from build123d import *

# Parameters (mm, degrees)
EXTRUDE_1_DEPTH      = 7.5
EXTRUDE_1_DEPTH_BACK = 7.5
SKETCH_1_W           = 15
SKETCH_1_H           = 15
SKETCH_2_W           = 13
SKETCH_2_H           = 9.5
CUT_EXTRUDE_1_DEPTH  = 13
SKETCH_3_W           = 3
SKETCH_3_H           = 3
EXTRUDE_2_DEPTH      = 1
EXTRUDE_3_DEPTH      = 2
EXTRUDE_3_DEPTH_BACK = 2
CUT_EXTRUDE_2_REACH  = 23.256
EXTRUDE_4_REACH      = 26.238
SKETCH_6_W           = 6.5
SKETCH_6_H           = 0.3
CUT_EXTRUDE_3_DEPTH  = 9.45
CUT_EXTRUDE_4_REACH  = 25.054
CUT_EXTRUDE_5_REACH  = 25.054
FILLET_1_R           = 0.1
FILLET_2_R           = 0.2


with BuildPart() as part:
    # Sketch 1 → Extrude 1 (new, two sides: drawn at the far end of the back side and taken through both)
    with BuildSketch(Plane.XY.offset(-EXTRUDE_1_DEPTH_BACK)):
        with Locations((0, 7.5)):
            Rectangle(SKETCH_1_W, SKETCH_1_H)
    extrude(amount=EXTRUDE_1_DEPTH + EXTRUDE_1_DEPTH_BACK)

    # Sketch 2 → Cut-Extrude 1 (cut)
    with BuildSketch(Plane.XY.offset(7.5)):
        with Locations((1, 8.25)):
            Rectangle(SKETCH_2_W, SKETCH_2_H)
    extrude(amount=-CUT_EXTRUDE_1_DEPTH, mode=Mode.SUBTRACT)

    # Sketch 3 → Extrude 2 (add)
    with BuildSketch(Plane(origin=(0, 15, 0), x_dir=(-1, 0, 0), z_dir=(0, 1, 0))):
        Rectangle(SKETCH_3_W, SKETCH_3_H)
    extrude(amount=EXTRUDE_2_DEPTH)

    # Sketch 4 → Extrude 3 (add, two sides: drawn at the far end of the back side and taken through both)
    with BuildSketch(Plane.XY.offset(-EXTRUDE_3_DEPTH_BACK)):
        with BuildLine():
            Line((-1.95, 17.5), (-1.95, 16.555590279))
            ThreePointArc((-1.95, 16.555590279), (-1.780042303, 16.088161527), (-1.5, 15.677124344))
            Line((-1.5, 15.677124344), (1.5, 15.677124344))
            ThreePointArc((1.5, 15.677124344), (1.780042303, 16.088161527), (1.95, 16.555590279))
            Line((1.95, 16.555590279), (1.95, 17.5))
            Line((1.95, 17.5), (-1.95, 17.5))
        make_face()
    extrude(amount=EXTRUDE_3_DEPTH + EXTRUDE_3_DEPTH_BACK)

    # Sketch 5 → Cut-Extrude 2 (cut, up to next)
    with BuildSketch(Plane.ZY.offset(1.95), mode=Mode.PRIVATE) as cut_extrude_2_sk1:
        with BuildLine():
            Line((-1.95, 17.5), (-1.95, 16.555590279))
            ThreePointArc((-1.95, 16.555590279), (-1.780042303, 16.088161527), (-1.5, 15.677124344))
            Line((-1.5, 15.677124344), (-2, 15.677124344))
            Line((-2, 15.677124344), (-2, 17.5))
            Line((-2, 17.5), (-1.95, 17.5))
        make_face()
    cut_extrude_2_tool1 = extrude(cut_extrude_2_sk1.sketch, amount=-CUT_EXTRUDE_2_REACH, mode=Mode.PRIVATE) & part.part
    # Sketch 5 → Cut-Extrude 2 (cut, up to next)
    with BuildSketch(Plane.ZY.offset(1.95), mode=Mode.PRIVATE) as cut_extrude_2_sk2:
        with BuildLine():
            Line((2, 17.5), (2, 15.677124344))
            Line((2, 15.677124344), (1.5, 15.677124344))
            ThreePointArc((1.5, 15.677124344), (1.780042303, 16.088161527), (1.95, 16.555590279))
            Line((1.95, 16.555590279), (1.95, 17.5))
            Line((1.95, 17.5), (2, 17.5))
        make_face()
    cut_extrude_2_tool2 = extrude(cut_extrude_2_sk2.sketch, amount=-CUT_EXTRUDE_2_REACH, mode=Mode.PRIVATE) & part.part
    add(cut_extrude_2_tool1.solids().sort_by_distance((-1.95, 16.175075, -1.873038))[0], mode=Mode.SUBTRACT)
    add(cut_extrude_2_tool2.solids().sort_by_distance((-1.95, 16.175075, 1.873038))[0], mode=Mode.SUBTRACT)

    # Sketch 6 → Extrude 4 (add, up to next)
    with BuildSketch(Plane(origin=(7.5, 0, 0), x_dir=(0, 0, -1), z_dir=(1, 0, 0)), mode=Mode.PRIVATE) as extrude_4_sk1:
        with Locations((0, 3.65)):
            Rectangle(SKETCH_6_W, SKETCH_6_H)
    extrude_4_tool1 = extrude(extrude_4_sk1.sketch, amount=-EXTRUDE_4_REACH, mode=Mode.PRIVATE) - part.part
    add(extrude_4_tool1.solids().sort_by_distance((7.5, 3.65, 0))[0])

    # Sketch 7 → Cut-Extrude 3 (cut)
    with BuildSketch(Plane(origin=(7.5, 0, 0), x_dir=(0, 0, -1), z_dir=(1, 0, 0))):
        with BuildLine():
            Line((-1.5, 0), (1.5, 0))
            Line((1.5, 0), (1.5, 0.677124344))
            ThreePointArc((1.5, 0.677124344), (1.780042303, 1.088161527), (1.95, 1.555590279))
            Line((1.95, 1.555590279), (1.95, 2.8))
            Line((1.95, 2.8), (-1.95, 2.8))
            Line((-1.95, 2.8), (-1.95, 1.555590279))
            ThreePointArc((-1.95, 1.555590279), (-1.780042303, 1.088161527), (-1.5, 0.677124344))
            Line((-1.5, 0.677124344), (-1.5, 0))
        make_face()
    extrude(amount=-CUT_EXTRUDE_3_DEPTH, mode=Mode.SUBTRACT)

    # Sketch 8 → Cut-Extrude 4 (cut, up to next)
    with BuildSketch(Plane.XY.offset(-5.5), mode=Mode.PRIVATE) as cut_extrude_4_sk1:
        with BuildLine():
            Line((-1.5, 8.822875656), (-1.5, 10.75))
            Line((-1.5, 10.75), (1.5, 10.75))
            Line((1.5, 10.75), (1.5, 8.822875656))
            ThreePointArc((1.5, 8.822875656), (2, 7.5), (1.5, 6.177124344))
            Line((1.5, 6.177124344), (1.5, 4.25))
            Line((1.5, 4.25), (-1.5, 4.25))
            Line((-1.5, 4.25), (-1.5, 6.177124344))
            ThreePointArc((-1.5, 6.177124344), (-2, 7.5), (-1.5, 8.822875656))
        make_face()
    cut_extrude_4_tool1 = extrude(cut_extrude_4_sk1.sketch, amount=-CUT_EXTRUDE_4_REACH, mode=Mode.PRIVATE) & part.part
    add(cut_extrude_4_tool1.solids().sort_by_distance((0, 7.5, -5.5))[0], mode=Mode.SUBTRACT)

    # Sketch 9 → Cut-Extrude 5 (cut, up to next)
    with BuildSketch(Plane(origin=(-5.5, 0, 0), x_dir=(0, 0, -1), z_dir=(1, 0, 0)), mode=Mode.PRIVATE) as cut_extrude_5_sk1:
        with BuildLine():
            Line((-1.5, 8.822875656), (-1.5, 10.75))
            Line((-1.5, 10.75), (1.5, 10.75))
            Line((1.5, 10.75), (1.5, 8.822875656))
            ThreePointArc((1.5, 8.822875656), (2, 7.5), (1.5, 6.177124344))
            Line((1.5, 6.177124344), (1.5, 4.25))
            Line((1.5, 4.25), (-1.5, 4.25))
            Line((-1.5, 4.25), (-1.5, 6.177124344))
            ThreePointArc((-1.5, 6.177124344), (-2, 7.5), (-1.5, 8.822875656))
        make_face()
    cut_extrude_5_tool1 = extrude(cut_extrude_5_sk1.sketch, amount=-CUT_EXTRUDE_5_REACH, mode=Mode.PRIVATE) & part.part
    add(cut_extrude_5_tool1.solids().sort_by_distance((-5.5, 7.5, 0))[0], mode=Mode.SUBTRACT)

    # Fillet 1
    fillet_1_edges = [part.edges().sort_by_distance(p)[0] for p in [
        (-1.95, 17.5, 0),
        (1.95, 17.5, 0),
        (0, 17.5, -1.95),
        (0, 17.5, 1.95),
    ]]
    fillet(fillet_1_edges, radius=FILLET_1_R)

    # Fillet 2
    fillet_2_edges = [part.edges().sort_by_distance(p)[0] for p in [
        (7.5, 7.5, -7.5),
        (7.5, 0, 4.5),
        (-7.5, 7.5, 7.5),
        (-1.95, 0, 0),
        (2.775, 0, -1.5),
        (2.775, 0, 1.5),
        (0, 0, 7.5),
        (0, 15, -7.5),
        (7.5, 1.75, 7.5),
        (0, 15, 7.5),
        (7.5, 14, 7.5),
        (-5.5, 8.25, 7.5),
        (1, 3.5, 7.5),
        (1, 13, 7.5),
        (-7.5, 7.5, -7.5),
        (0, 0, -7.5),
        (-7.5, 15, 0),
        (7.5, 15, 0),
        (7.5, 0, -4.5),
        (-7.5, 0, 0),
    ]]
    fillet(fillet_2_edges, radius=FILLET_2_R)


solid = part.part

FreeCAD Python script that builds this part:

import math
import FreeCAD as App
import Part
import Sketcher

V = App.Vector


def edges_at(feature, points):
    """Names of the edges that pass closest to the given points."""
    edges = feature.Shape.Edges
    near = lambda p: min(range(len(edges)), key=lambda i: edges[i].distToShape(Part.Vertex(*p))[0])
    return sorted({f"Edge{near(p) + 1}" for p in points})


def add_polygon(sketch, points):
    """Adds a closed chain of lines whose ends are joined by coincident constraints."""
    first, n = sketch.GeometryCount, len(points)
    for a, b in zip(points, points[1:] + points[:1]):
        sketch.addGeometry(Part.LineSegment(App.Vector(*a, 0), App.Vector(*b, 0)), False)
    for i in range(n):
        sketch.addConstraint(Sketcher.Constraint("Coincident", first + i, 2, first + (i + 1) % n, 1))

doc = App.newDocument("Part")
body = doc.addObject("PartDesign::Body", "Body")

# Sketch on XY plane
sketch1 = doc.addObject("Sketcher::SketchObject", "Sketch")
body.addObject(sketch1)
sketch1.AttachmentSupport = (doc.XY_Plane, [""])
sketch1.MapMode = "FlatFace"
add_polygon(sketch1, [(-8, 15), (-8, 0), (8, 0), (8, 15)])  # lines 0-3
sketch1.addConstraint([
    Sketcher.Constraint("Vertical", 0),
    Sketcher.Constraint("Horizontal", 1),
    Sketcher.Constraint("Vertical", 2),
    Sketcher.Constraint("Horizontal", 3),
    Sketcher.Constraint("Symmetric", 0, 2, 1, 2, -1, 1),
    Sketcher.Constraint("Equal", 3, 0),
    Sketcher.Constraint("DistanceX", 1, 1, 1, 2, 15.0),
])
pad1 = doc.addObject("PartDesign::Pad", "Pad")
body.addObject(pad1)
pad1.Profile = sketch1
pad1.Type = "TwoLengths"
pad1.Length = 7.5
pad1.Length2 = 7.5

# Sketch on XY plane
sketch2 = doc.addObject("Sketcher::SketchObject", "Sketch001")
body.addObject(sketch2)
sketch2.AttachmentSupport = (doc.XY_Plane, [""])
sketch2.MapMode = "FlatFace"
sketch2.AttachmentOffset = App.Placement(V(0, 0, 7.5), App.Rotation())
add_polygon(sketch2, [(-6, 13), (-6, 4), (8, 4), (8, 13)])  # lines 0-3
sketch2.addConstraint([
    Sketcher.Constraint("Vertical", 0),
    Sketcher.Constraint("Horizontal", 1),
    Sketcher.Constraint("Vertical", 2),
    Sketcher.Constraint("Horizontal", 3),
    Sketcher.Constraint("DistanceX", 1, 1, 1, 2, 13.0),
    Sketcher.Constraint("DistanceY", 0, 2, 0, 1, 9.5),
    Sketcher.Constraint("DistanceY", -1, 1, 2, 2, 13.0),
    Sketcher.Constraint("DistanceX", 0, 2, -1, 1, 5.5),
])
pocket1 = doc.addObject("PartDesign::Pocket", "Pocket")
body.addObject(pocket1)
pocket1.Profile = sketch2
pocket1.Length = 13

# Sketch on XZ plane
sketch3 = doc.addObject("Sketcher::SketchObject", "Sketch002")
body.addObject(sketch3)
sketch3.AttachmentSupport = (doc.XZ_Plane, [""])
sketch3.MapMode = "FlatFace"
sketch3.AttachmentOffset = App.Placement(V(0, 0, -15), App.Rotation())
add_polygon(sketch3, [(1.5, 1.5), (1.5, -1.5), (-1.5, -1.5), (-1.5, 1.5)])  # lines 0-3
sketch3.addConstraint([
    Sketcher.Constraint("Vertical", 0),
    Sketcher.Constraint("Horizontal", 1),
    Sketcher.Constraint("Vertical", 2),
    Sketcher.Constraint("Horizontal", 3),
    Sketcher.Constraint("Symmetric", 0, 2, 2, 2, -1, 1),
    Sketcher.Constraint("Equal", 3, 0),
    Sketcher.Constraint("DistanceX", 1, 2, 1, 1, 3.0),
])
pad2 = doc.addObject("PartDesign::Pad", "Pad001")
body.addObject(pad2)
pad2.Profile = sketch3
pad2.Length = 1
pad2.Reversed = True

# Sketch on XY plane
sketch4 = doc.addObject("Sketcher::SketchObject", "Sketch003")
body.addObject(sketch4)
sketch4.AttachmentSupport = (doc.XY_Plane, [""])
sketch4.MapMode = "FlatFace"
sketch4.addGeometry([
    Part.LineSegment(V(-1.9, 17.5, 0), V(-1.9, 16.6, 0)),  # 0
    Part.ArcOfCircle(Part.Circle(V(0, 17, 0), V(0, 0, 1), 2), math.radians(-167), math.radians(-139)),  # 1
    Part.LineSegment(V(-1.5, 15.7, 0), V(1.5, 15.7, 0)),  # 2
    Part.ArcOfCircle(Part.Circle(V(0, 17, 0), V(0, 0, 1), 2), math.radians(-41), math.radians(-13)),  # 3
    Part.LineSegment(V(1.9, 16.6, 0), V(1.9, 17.5, 0)),  # 4
    Part.LineSegment(V(1.9, 17.5, 0), V(-1.9, 17.5, 0)),  # 5
], False)
sketch4.addConstraint([
    Sketcher.Constraint("Coincident", 0, 2, 1, 1),
    Sketcher.Constraint("Coincident", 1, 2, 2, 1),
    Sketcher.Constraint("Coincident", 2, 2, 3, 1),
    Sketcher.Constraint("Coincident", 3, 2, 4, 1),
    Sketcher.Constraint("Coincident", 4, 2, 5, 1),
    Sketcher.Constraint("Coincident", 5, 2, 0, 1),
    Sketcher.Constraint("Vertical", 0),
    Sketcher.Constraint("Horizontal", 2),
    Sketcher.Constraint("Vertical", 4),
    Sketcher.Constraint("Horizontal", 5),
    Sketcher.Constraint("Coincident", 3, 3, 1, 3),
    Sketcher.Constraint("Equal", 1, 3),
    Sketcher.Constraint("Symmetric", 0, 2, 3, 2, -2),
    Sketcher.Constraint("Radius", 1, 2.0),
    Sketcher.Constraint("DistanceX", 2, 1, 2, 2, 3.0),
    Sketcher.Constraint("DistanceX", 5, 2, 5, 1, 3.9),
    Sketcher.Constraint("DistanceY", -1, 1, 1, 3, 17.0),
    Sketcher.Constraint("DistanceY", -1, 1, 4, 2, 17.5),
])
pad3 = doc.addObject("PartDesign::Pad", "Pad002")
body.addObject(pad3)
pad3.Profile = sketch4
pad3.Type = "TwoLengths"
pad3.Length = 2
pad3.Length2 = 2

# Sketch on YZ plane
sketch5 = doc.addObject("Sketcher::SketchObject", "Sketch004")
body.addObject(sketch5)
sketch5.AttachmentSupport = (doc.YZ_Plane, [""])
sketch5.MapMode = "FlatFace"
sketch5.AttachmentOffset = App.Placement(V(0, 0, -1.95), App.Rotation())
sketch5.addGeometry([
    Part.LineSegment(V(16.56, -1.95, 0), V(17.5, -1.95, 0)),  # 0
    Part.LineSegment(V(17.5, -1.95, 0), V(17.5, -2, 0)),  # 1
    Part.LineSegment(V(17.5, -2, 0), V(15.68, -2, 0)),  # 2
    Part.LineSegment(V(15.68, -2, 0), V(15.68, -1.5, 0)),  # 3
    Part.ArcOfCircle(Part.Circle(V(17, 0, 0), V(0, 0, 1), 2), math.radians(-131), math.radians(-103)),  # 4
], False)
sketch5.addConstraint([
    Sketcher.Constraint("Coincident", 0, 2, 1, 1),
    Sketcher.Constraint("Coincident", 1, 2, 2, 1),
    Sketcher.Constraint("Coincident", 2, 2, 3, 1),
    Sketcher.Constraint("Coincident", 3, 2, 4, 1),
    Sketcher.Constraint("Coincident", 4, 2, 0, 1),
    Sketcher.Constraint("Horizontal", 0),
    Sketcher.Constraint("Vertical", 1),
    Sketcher.Constraint("Horizontal", 2),
    Sketcher.Constraint("Vertical", 3),
    Sketcher.Constraint("PointOnObject", 4, 3, -1),
    Sketcher.Constraint("Radius", 4, 2.0),
    Sketcher.Constraint("DistanceY", 3, 1, 3, 2, 0.5),
    Sketcher.Constraint("DistanceX", -1, 1, 4, 3, 17.0),
    Sketcher.Constraint("DistanceY", 1, 2, -1, 1, 2.0),
    Sketcher.Constraint("DistanceY", 1, 2, 1, 1, 0.05),
    Sketcher.Constraint("DistanceX", -1, 1, 0, 2, 17.5),
])
pocket2 = doc.addObject("PartDesign::Pocket", "Pocket001")
body.addObject(pocket2)
pocket2.Profile = sketch5
pocket2.Length = 3.9
pocket2.Reversed = True

# Sketch on YZ plane
sketch6 = doc.addObject("Sketcher::SketchObject", "Sketch005")
body.addObject(sketch6)
sketch6.AttachmentSupport = (doc.YZ_Plane, [""])
sketch6.MapMode = "FlatFace"
sketch6.AttachmentOffset = App.Placement(V(0, 0, -1.95), App.Rotation())
sketch6.addGeometry([
    Part.LineSegment(V(15.68, 2, 0), V(17.5, 2, 0)),  # 0
    Part.LineSegment(V(17.5, 2, 0), V(17.5, 1.95, 0)),  # 1
    Part.LineSegment(V(17.5, 1.95, 0), V(16.56, 1.95, 0)),  # 2
    Part.ArcOfCircle(Part.Circle(V(17, 0, 0), V(0, 0, 1), 2), math.radians(103), math.radians(131)),  # 3
    Part.LineSegment(V(15.68, 1.5, 0), V(15.68, 2, 0)),  # 4
], False)
sketch6.addConstraint([
    Sketcher.Constraint("Coincident", 0, 2, 1, 1),
    Sketcher.Constraint("Coincident", 1, 2, 2, 1),
    Sketcher.Constraint("Coincident", 2, 2, 3, 1),
    Sketcher.Constraint("Coincident", 3, 2, 4, 1),
    Sketcher.Constraint("Coincident", 4, 2, 0, 1),
    Sketcher.Constraint("Horizontal", 0),
    Sketcher.Constraint("Vertical", 1),
    Sketcher.Constraint("Horizontal", 2),
    Sketcher.Constraint("Vertical", 4),
    Sketcher.Constraint("PointOnObject", 3, 3, -1),
    Sketcher.Constraint("Radius", 3, 2.0),
    Sketcher.Constraint("DistanceY", 4, 1, 4, 2, 0.5),
    Sketcher.Constraint("DistanceX", -1, 1, 3, 3, 17.0),
    Sketcher.Constraint("DistanceY", -1, 1, 0, 2, 2.0),
    Sketcher.Constraint("DistanceY", 1, 2, 1, 1, 0.05),
    Sketcher.Constraint("DistanceX", -1, 1, 0, 2, 17.5),
])
pocket3 = doc.addObject("PartDesign::Pocket", "Pocket002")
body.addObject(pocket3)
pocket3.Profile = sketch6
pocket3.Length = 3.9
pocket3.Reversed = True

# Sketch on YZ plane
sketch7 = doc.addObject("Sketcher::SketchObject", "Sketch006")
body.addObject(sketch7)
sketch7.AttachmentSupport = (doc.YZ_Plane, [""])
sketch7.MapMode = "FlatFace"
sketch7.AttachmentOffset = App.Placement(V(0, 0, 7.5), App.Rotation())
add_polygon(sketch7, [(3.8, 3.25), (3.5, 3.25), (3.5, -3.25), (3.8, -3.25)])  # lines 0-3
sketch7.addConstraint([
    Sketcher.Constraint("Horizontal", 0),
    Sketcher.Constraint("Vertical", 1),
    Sketcher.Constraint("Horizontal", 2),
    Sketcher.Constraint("Vertical", 3),
    Sketcher.Constraint("DistanceX", 0, 2, 0, 1, 0.3),
    Sketcher.Constraint("DistanceY", 1, 2, 1, 1, 6.5),
    Sketcher.Constraint("DistanceX", -1, 1, 0, 2, 3.5),
    Sketcher.Constraint("DistanceY", -1, 1, 0, 2, 3.25),
])
pad4 = doc.addObject("PartDesign::Pad", "Pad003")
body.addObject(pad4)
pad4.Profile = sketch7
pad4.Type = "UpToFirst"
pad4.Reversed = True

# Sketch on YZ plane
sketch8 = doc.addObject("Sketcher::SketchObject", "Sketch007")
body.addObject(sketch8)
sketch8.AttachmentSupport = (doc.YZ_Plane, [""])
sketch8.MapMode = "FlatFace"
sketch8.AttachmentOffset = App.Placement(V(0, 0, 7.5), App.Rotation())
sketch8.addGeometry([
    Part.LineSegment(V(0, 1.5, 0), V(0, -1.5, 0)),  # 0
    Part.LineSegment(V(0, -1.5, 0), V(0.7, -1.5, 0)),  # 1
    Part.ArcOfCircle(Part.Circle(V(2, 0, 0), V(0, 0, 1), 2), math.radians(-131), math.radians(-103)),  # 2
    Part.LineSegment(V(1.6, -1.9, 0), V(2.8, -1.9, 0)),  # 3
    Part.LineSegment(V(2.8, -1.9, 0), V(2.8, 1.9, 0)),  # 4
    Part.LineSegment(V(2.8, 1.9, 0), V(1.6, 1.9, 0)),  # 5
    Part.ArcOfCircle(Part.Circle(V(2, 0, 0), V(0, 0, 1), 2), math.radians(103), math.radians(131)),  # 6
    Part.LineSegment(V(0.7, 1.5, 0), V(0, 1.5, 0)),  # 7
], False)
sketch8.addConstraint([
    Sketcher.Constraint("Coincident", 0, 2, 1, 1),
    Sketcher.Constraint("Coincident", 1, 2, 2, 1),
    Sketcher.Constraint("Coincident", 2, 2, 3, 1),
    Sketcher.Constraint("Coincident", 3, 2, 4, 1),
    Sketcher.Constraint("Coincident", 4, 2, 5, 1),
    Sketcher.Constraint("Coincident", 5, 2, 6, 1),
    Sketcher.Constraint("Coincident", 6, 2, 7, 1),
    Sketcher.Constraint("Coincident", 7, 2, 0, 1),
    Sketcher.Constraint("Vertical", 0),
    Sketcher.Constraint("Horizontal", 1),
    Sketcher.Constraint("Horizontal", 3),
    Sketcher.Constraint("Vertical", 4),
    Sketcher.Constraint("Horizontal", 5),
    Sketcher.Constraint("Horizontal", 7),
    Sketcher.Constraint("Coincident", 6, 3, 2, 3),
    Sketcher.Constraint("Equal", 2, 6),
    Sketcher.Constraint("Symmetric", 0, 2, 7, 2, -1, 1),
    Sketcher.Constraint("Symmetric", 2, 2, 5, 2, -1),
    Sketcher.Constraint("Radius", 2, 2.0),
    Sketcher.Constraint("DistanceY", 0, 2, 0, 1, 3.0),
    Sketcher.Constraint("DistanceY", 4, 1, 4, 2, 3.9),
    Sketcher.Constraint("DistanceX", -1, 1, 2, 3, 2.0),
    Sketcher.Constraint("DistanceX", -1, 1, 3, 2, 2.8),
])
pocket4 = doc.addObject("PartDesign::Pocket", "Pocket003")
body.addObject(pocket4)
pocket4.Profile = sketch8
pocket4.Length = 9.45

# Sketch on XY plane
sketch9 = doc.addObject("Sketcher::SketchObject", "Sketch008")
body.addObject(sketch9)
sketch9.AttachmentSupport = (doc.XY_Plane, [""])
sketch9.MapMode = "FlatFace"
sketch9.AttachmentOffset = App.Placement(V(0, 0, -5.5), App.Rotation())
sketch9.addGeometry([
    Part.LineSegment(V(-1.5, 10.8, 0), V(-1.5, 8.8, 0)),  # 0
    Part.ArcOfCircle(Part.Circle(V(0, 7.5, 0), V(0, 0, 1), 2), math.radians(139), math.radians(221)),  # 1
    Part.LineSegment(V(-1.5, 6.2, 0), V(-1.5, 4.2, 0)),  # 2
    Part.LineSegment(V(-1.5, 4.2, 0), V(1.5, 4.2, 0)),  # 3
    Part.LineSegment(V(1.5, 4.2, 0), V(1.5, 6.2, 0)),  # 4
    Part.ArcOfCircle(Part.Circle(V(0, 7.5, 0), V(0, 0, 1), 2), math.radians(-41), math.radians(41)),  # 5
    Part.LineSegment(V(1.5, 8.8, 0), V(1.5, 10.8, 0)),  # 6
    Part.LineSegment(V(1.5, 10.8, 0), V(-1.5, 10.8, 0)),  # 7
], False)
sketch9.addConstraint([
    Sketcher.Constraint("Coincident", 0, 2, 1, 1),
    Sketcher.Constraint("Coincident", 1, 2, 2, 1),
    Sketcher.Constraint("Coincident", 2, 2, 3, 1),
    Sketcher.Constraint("Coincident", 3, 2, 4, 1),
    Sketcher.Constraint("Coincident", 4, 2, 5, 1),
    Sketcher.Constraint("Coincident", 5, 2, 6, 1),
    Sketcher.Constraint("Coincident", 6, 2, 7, 1),
    Sketcher.Constraint("Coincident", 7, 2, 0, 1),
    Sketcher.Constraint("Vertical", 0),
    Sketcher.Constraint("Vertical", 2),
    Sketcher.Constraint("Horizontal", 3),
    Sketcher.Constraint("Vertical", 4),
    Sketcher.Constraint("Vertical", 6),
    Sketcher.Constraint("Horizontal", 7),
    Sketcher.Constraint("Coincident", 5, 3, 1, 3),
    Sketcher.Constraint("Equal", 1, 5),
    Sketcher.Constraint("Symmetric", 1, 2, 4, 2, -2),
    Sketcher.Constraint("Horizontal", 0, 2, 5, 2),
    Sketcher.Constraint("Vertical", 0, 2, 1, 2),
    Sketcher.Constraint("Equal", 0, 2),
    Sketcher.Constraint("Radius", 1, 2.0),
    Sketcher.Constraint("DistanceX", 3, 1, 3, 2, 3.0),
    Sketcher.Constraint("DistanceY", -1, 1, 1, 3, 7.5),
    Sketcher.Constraint("DistanceY", -1, 1, 2, 2, 4.25),
])
pocket5 = doc.addObject("PartDesign::Pocket", "Pocket004")
body.addObject(pocket5)
pocket5.Profile = sketch9
pocket5.Type = "UpToFirst"

# Sketch on YZ plane
sketch10 = doc.addObject("Sketcher::SketchObject", "Sketch009")
body.addObject(sketch10)
sketch10.AttachmentSupport = (doc.YZ_Plane, [""])
sketch10.MapMode = "FlatFace"
sketch10.AttachmentOffset = App.Placement(V(0, 0, -5.5), App.Rotation())
sketch10.addGeometry([
    Part.LineSegment(V(10.8, 1.5, 0), V(8.8, 1.5, 0)),  # 0
    Part.ArcOfCircle(Part.Circle(V(7.5, 0, 0), V(0, 0, 1), 2), math.radians(49), math.radians(131)),  # 1
    Part.LineSegment(V(6.2, 1.5, 0), V(4.2, 1.5, 0)),  # 2
    Part.LineSegment(V(4.2, 1.5, 0), V(4.2, -1.5, 0)),  # 3
    Part.LineSegment(V(4.2, -1.5, 0), V(6.2, -1.5, 0)),  # 4
    Part.ArcOfCircle(Part.Circle(V(7.5, 0, 0), V(0, 0, 1), 2), math.radians(-131), math.radians(-49)),  # 5
    Part.LineSegment(V(8.8, -1.5, 0), V(10.8, -1.5, 0)),  # 6
    Part.LineSegment(V(10.8, -1.5, 0), V(10.8, 1.5, 0)),  # 7
], False)
sketch10.addConstraint([
    Sketcher.Constraint("Coincident", 0, 2, 1, 1),
    Sketcher.Constraint("Coincident", 1, 2, 2, 1),
    Sketcher.Constraint("Coincident", 2, 2, 3, 1),
    Sketcher.Constraint("Coincident", 3, 2, 4, 1),
    Sketcher.Constraint("Coincident", 4, 2, 5, 1),
    Sketcher.Constraint("Coincident", 5, 2, 6, 1),
    Sketcher.Constraint("Coincident", 6, 2, 7, 1),
    Sketcher.Constraint("Coincident", 7, 2, 0, 1),
    Sketcher.Constraint("Horizontal", 0),
    Sketcher.Constraint("Horizontal", 2),
    Sketcher.Constraint("Vertical", 3),
    Sketcher.Constraint("Horizontal", 4),
    Sketcher.Constraint("Horizontal", 6),
    Sketcher.Constraint("Vertical", 7),
    Sketcher.Constraint("Coincident", 5, 3, 1, 3),
    Sketcher.Constraint("Equal", 1, 5),
    Sketcher.Constraint("Symmetric", 1, 2, 4, 2, -1),
    Sketcher.Constraint("Horizontal", 0, 2, 1, 2),
    Sketcher.Constraint("Horizontal", 4, 2, 5, 2),
    Sketcher.Constraint("Equal", 0, 2),
    Sketcher.Constraint("Radius", 1, 2.0),
    Sketcher.Constraint("DistanceY", 3, 2, 3, 1, 3.0),
    Sketcher.Constraint("DistanceX", -1, 1, 1, 3, 7.5),
    Sketcher.Constraint("DistanceX", -1, 1, 2, 2, 4.25),
])
pocket6 = doc.addObject("PartDesign::Pocket", "Pocket005")
body.addObject(pocket6)
pocket6.Profile = sketch10
pocket6.Type = "UpToFirst"
doc.recompute()

fillet = doc.addObject("PartDesign::Fillet", "Fillet")
body.addObject(fillet)
fillet.Base = (pocket6, edges_at(pocket6, [
    (-1.95, 17.5, 0),
    (1.95, 17.5, 0),
    (0, 17.5, -1.95),
    (0, 17.5, 1.95),
]))
fillet.Radius = 0.1
doc.recompute()

fillet2 = doc.addObject("PartDesign::Fillet", "Fillet001")
body.addObject(fillet2)
fillet2.Base = (fillet, edges_at(fillet, [
    (7.5, 7.5, -7.5),
    (7.5, 0, 4.5),
    (-7.5, 7.5, 7.5),
    (-1.95, 0, 0),
    (2.775, 0, -1.5),
    (2.775, 0, 1.5),
    (0, 0, 7.5),
    (0, 15, -7.5),
    (7.5, 1.75, 7.5),
    (0, 15, 7.5),
    (7.5, 14, 7.5),
    (-5.5, 8.25, 7.5),
    (1, 3.5, 7.5),
    (1, 13, 7.5),
    (-7.5, 7.5, -7.5),
    (0, 0, -7.5),
    (-7.5, 15, 0),
    (7.5, 15, 0),
    (7.5, 0, -4.5),
    (-7.5, 0, 0),
]))
fillet2.Radius = 0.2

doc.recompute()
